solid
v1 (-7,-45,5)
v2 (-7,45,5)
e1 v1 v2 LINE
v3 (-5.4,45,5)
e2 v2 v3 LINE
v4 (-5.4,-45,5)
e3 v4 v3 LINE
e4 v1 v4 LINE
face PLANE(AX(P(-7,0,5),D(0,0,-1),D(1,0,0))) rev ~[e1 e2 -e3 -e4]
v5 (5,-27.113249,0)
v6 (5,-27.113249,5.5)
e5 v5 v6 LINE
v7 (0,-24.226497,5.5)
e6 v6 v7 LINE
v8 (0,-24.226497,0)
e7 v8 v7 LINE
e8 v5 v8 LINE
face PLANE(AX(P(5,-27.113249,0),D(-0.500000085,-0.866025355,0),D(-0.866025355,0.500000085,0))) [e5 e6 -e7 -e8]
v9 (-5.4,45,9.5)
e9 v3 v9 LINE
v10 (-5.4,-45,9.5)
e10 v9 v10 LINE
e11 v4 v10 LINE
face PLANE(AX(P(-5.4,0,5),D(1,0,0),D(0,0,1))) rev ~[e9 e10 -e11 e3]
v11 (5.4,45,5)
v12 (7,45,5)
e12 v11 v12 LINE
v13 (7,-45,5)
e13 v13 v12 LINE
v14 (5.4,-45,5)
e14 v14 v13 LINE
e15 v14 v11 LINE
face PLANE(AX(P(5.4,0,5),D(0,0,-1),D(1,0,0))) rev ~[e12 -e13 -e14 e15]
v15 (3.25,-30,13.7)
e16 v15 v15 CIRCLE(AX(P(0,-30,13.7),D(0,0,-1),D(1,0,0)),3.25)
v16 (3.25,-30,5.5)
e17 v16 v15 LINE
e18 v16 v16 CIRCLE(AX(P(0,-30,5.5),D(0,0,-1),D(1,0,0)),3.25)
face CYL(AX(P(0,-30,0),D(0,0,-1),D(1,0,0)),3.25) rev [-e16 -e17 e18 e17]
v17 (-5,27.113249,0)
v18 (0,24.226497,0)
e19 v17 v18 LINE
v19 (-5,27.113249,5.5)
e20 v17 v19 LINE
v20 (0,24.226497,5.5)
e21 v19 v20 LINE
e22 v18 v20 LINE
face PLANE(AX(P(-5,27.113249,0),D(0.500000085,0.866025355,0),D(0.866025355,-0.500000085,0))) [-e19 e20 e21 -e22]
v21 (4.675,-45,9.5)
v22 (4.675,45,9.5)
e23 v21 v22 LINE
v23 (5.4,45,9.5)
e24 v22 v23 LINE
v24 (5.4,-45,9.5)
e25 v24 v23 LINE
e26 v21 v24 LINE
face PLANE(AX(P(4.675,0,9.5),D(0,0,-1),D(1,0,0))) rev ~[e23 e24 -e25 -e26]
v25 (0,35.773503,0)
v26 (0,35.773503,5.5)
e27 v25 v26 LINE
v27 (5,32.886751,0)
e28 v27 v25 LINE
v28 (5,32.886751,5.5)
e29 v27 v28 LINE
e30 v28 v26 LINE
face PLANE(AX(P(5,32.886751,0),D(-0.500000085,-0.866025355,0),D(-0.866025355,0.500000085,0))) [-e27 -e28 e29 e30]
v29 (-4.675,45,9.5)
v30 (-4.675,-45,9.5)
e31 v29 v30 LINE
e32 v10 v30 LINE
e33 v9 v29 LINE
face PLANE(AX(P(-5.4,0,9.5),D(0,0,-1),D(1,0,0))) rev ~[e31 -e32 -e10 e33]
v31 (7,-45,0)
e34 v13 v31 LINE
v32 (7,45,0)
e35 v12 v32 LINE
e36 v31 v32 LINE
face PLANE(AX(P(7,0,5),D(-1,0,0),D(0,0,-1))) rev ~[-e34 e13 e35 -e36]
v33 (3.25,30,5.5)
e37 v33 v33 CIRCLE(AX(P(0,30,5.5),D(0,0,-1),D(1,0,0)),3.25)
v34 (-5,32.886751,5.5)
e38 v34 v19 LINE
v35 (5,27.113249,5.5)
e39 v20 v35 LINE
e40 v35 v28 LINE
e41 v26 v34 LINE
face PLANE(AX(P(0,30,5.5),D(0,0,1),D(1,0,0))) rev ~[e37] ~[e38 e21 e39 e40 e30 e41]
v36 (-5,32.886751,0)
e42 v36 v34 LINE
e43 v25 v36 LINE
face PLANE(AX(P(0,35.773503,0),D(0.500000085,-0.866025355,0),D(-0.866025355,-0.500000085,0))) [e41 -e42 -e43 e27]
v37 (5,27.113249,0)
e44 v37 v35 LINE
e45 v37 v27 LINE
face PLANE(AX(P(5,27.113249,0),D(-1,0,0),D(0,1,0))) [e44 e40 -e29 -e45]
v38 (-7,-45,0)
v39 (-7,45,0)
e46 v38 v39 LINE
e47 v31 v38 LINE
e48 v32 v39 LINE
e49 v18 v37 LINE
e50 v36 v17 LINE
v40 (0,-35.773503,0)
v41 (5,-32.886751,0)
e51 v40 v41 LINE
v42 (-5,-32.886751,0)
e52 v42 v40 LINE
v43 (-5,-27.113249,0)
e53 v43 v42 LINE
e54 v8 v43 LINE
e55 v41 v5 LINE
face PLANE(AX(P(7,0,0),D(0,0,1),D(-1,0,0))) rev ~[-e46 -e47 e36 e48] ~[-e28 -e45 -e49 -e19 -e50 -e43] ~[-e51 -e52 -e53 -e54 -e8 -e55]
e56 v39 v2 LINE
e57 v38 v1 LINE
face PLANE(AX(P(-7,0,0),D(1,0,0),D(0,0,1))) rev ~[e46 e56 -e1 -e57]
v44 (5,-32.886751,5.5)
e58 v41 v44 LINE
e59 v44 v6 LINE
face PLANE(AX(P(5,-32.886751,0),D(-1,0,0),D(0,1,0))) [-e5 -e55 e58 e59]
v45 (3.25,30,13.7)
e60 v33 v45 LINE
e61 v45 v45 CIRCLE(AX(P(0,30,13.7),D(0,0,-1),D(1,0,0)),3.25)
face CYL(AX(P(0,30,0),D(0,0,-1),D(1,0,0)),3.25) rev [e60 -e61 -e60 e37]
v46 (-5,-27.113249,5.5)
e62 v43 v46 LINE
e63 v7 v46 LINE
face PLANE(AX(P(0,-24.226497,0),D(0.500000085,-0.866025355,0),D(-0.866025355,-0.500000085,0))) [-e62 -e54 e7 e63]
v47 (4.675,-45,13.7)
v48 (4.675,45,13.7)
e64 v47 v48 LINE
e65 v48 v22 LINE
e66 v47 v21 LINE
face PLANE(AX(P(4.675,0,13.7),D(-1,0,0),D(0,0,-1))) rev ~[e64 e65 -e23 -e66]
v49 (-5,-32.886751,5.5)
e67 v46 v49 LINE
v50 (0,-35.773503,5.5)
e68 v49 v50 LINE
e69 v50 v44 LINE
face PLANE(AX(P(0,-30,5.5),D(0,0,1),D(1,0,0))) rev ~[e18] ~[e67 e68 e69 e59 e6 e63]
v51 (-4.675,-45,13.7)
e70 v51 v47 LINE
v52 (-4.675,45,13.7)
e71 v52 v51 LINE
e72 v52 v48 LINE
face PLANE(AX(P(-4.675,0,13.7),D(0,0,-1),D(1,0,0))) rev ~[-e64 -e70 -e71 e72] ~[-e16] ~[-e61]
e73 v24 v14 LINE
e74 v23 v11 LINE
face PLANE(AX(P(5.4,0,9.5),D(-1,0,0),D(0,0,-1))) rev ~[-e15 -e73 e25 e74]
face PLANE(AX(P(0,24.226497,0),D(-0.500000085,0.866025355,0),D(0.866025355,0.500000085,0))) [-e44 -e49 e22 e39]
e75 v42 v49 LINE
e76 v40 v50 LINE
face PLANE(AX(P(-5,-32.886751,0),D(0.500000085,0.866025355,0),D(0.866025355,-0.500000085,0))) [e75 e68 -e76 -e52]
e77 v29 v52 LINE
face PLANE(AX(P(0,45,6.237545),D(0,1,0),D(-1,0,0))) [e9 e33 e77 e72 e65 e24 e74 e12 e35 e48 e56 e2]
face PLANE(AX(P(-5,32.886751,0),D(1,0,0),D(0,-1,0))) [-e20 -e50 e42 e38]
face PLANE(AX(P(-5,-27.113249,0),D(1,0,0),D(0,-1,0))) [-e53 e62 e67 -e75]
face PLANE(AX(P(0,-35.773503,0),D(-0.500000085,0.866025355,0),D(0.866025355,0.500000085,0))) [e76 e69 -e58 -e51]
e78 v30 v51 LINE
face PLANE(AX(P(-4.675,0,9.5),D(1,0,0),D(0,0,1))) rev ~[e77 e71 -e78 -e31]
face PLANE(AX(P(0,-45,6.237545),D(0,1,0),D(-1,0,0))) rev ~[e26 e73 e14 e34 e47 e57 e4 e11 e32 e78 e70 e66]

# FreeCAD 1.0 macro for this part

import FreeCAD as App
import Part
import Sketcher
Q = App.Units.Quantity

doc = App.newDocument("Part")
body = doc.addObject("PartDesign::Body", "Body")

sketch1 = body.newObject("Sketcher::SketchObject", "Sketch")
sketch1.AttachmentSupport = (doc.getObject("XZ_Plane"), [""])
sketch1.MapMode = "FlatFace"
sketch1.addGeometry(Part.LineSegment(App.Vector(4.7, 13.7, 0), App.Vector(-4.7, 13.7, 0)), False)
sketch1.addGeometry(Part.LineSegment(App.Vector(-4.7, 13.7, 0), App.Vector(-4.7, 9.5, 0)), False)
sketch1.addGeometry(Part.LineSegment(App.Vector(-4.7, 9.5, 0), App.Vector(-5.4, 9.5, 0)), False)
sketch1.addGeometry(Part.LineSegment(App.Vector(-5.4, 9.5, 0), App.Vector(-5.4, 5, 0)), False)
sketch1.addGeometry(Part.LineSegment(App.Vector(-5.4, 5, 0), App.Vector(-7, 5, 0)), False)
sketch1.addGeometry(Part.LineSegment(App.Vector(-7, 5, 0), App.Vector(-7, 0, 0)), False)
sketch1.addGeometry(Part.LineSegment(App.Vector(-7, 0, 0), App.Vector(7, 0, 0)), False)
sketch1.addGeometry(Part.LineSegment(App.Vector(7, 0, 0), App.Vector(7, 5, 0)), False)
sketch1.addGeometry(Part.LineSegment(App.Vector(7, 5, 0), App.Vector(5.4, 5, 0)), False)
sketch1.addGeometry(Part.LineSegment(App.Vector(5.4, 5, 0), App.Vector(5.4, 9.5, 0)), False)
sketch1.addGeometry(Part.LineSegment(App.Vector(5.4, 9.5, 0), App.Vector(4.7, 9.5, 0)), False)
sketch1.addGeometry(Part.LineSegment(App.Vector(4.7, 9.5, 0), App.Vector(4.7, 13.7, 0)), False)
sketch1.addConstraint(Sketcher.Constraint("Coincident", 0, 2, 1, 1))
sketch1.addConstraint(Sketcher.Constraint("Coincident", 1, 2, 2, 1))
sketch1.addConstraint(Sketcher.Constraint("Coincident", 2, 2, 3, 1))
sketch1.addConstraint(Sketcher.Constraint("Coincident", 3, 2, 4, 1))
sketch1.addConstraint(Sketcher.Constraint("Coincident", 4, 2, 5, 1))
sketch1.addConstraint(Sketcher.Constraint("Coincident", 5, 2, 6, 1))
sketch1.addConstraint(Sketcher.Constraint("Coincident", 6, 2, 7, 1))
sketch1.addConstraint(Sketcher.Constraint("Coincident", 7, 2, 8, 1))
sketch1.addConstraint(Sketcher.Constraint("Coincident", 8, 2, 9, 1))
sketch1.addConstraint(Sketcher.Constraint("Coincident", 9, 2, 10, 1))
sketch1.addConstraint(Sketcher.Constraint("Coincident", 10, 2, 11, 1))
sketch1.addConstraint(Sketcher.Constraint("Coincident", 11, 2, 0, 1))
sketch1.addConstraint(Sketcher.Constraint("Horizontal", 0))
sketch1.addConstraint(Sketcher.Constraint("Vertical", 1))
sketch1.addConstraint(Sketcher.Constraint("Horizontal", 2))
sketch1.addConstraint(Sketcher.Constraint("Vertical", 3))
sketch1.addConstraint(Sketcher.Constraint("Horizontal", 4))
sketch1.addConstraint(Sketcher.Constraint("Vertical", 5))
sketch1.addConstraint(Sketcher.Constraint("Horizontal", 6))
sketch1.addConstraint(Sketcher.Constraint("Vertical", 7))
sketch1.addConstraint(Sketcher.Constraint("Horizontal", 8))
sketch1.addConstraint(Sketcher.Constraint("Vertical", 9))
sketch1.addConstraint(Sketcher.Constraint("Horizontal", 10))
sketch1.addConstraint(Sketcher.Constraint("Vertical", 11))
sketch1.addConstraint(Sketcher.Constraint("Symmetric", 5, 2, 6, 2, -1, 1))
sketch1.addConstraint(Sketcher.Constraint("Symmetric", 3, 2, 8, 2, -2))
sketch1.addConstraint(Sketcher.Constraint("Symmetric", 1, 2, 10, 2, -2))
sketch1.addConstraint(Sketcher.Constraint("DistanceX", 6, 1, 6, 2, Q("14 mm")))
sketch1.addConstraint(Sketcher.Constraint("DistanceY", 5, 2, 5, 1, Q("5 mm")))
sketch1.addConstraint(Sketcher.Constraint("DistanceX", 4, 2, 4, 1, Q("1.6 mm")))
sketch1.addConstraint(Sketcher.Constraint("DistanceY", 1, 2, 1, 1, Q("4.2 mm")))
sketch1.addConstraint(Sketcher.Constraint("DistanceY", 3, 2, 3, 1, Q("4.5 mm")))
sketch1.addConstraint(Sketcher.Constraint("DistanceX", 0, 2, 0, 1, Q("9.35 mm")))
pad1 = body.newObject("PartDesign::Pad", "Pad")
pad1.Profile = sketch1
pad1.Length = 90
pad1.Midplane = True

sketch2 = body.newObject("Sketcher::SketchObject", "Sketch001")
sketch2.AttachmentSupport = (doc.getObject("XY_Plane"), [""])
sketch2.MapMode = "FlatFace"
sketch2.addGeometry(Part.Circle(App.Vector(0, -30, 0), App.Vector(0, 0, 1), 3.2), False)
sketch2.addGeometry(Part.Circle(App.Vector(0, 30, 0), App.Vector(0, 0, 1), 3.2), False)
sketch2.addConstraint(Sketcher.Constraint("Equal", 0, 1))
sketch2.addConstraint(Sketcher.Constraint("Symmetric", 0, 3, 1, 3, -1, 1))
sketch2.addConstraint(Sketcher.Constraint("PointOnObject", 0, 3, -2))
sketch2.addConstraint(Sketcher.Constraint("Diameter", 0, Q("6.5 mm")))
sketch2.addConstraint(Sketcher.Constraint("DistanceY", 0, 3, -1, 1, Q("30 mm")))
pocket1 = body.newObject("PartDesign::Pocket", "Pocket")
pocket1.Profile = sketch2
pocket1.Type = "ThroughAll"
pocket1.Reversed = True

sketch3 = body.newObject("Sketcher::SketchObject", "Sketch002")
sketch3.AttachmentSupport = (doc.getObject("XY_Plane"), [""])
sketch3.MapMode = "FlatFace"
sketch3.addGeometry(Part.LineSegment(App.Vector(5, 27, 0), App.Vector(5, 33, 0)), False)
sketch3.addGeometry(Part.LineSegment(App.Vector(5, 33, 0), App.Vector(0, 36, 0)), False)
sketch3.addGeometry(Part.LineSegment(App.Vector(0, 36, 0), App.Vector(-5, 33, 0)), False)
sketch3.addGeometry(Part.LineSegment(App.Vector(-5, 33, 0), App.Vector(-5, 27, 0)), False)
sketch3.addGeometry(Part.LineSegment(App.Vector(-5, 27, 0), App.Vector(0, 24, 0)), False)
sketch3.addGeometry(Part.LineSegment(App.Vector(0, 24, 0), App.Vector(5, 27, 0)), False)
sketch3.addGeometry(Part.LineSegment(App.Vector(0, -36, 0), App.Vector(5, -33, 0)), False)
sketch3.addGeometry(Part.LineSegment(App.Vector(5, -33, 0), App.Vector(5, -27, 0)), False)
sketch3.addGeometry(Part.LineSegment(App.Vector(5, -27, 0), App.Vector(0, -24, 0)), False)
sketch3.addGeometry(Part.LineSegment(App.Vector(0, -24, 0), App.Vector(-5, -27, 0)), False)
sketch3.addGeometry(Part.LineSegment(App.Vector(-5, -27, 0), App.Vector(-5, -33, 0)), False)
sketch3.addGeometry(Part.LineSegment(App.Vector(-5, -33, 0), App.Vector(0, -36, 0)), False)
sketch3.addConstraint(Sketcher.Constraint("Coincident", 0, 2, 1, 1))
sketch3.addConstraint(Sketcher.Constraint("Coincident", 1, 2, 2, 1))
sketch3.addConstraint(Sketcher.Constraint("Coincident", 2, 2, 3, 1))
sketch3.addConstraint(Sketcher.Constraint("Coincident", 3, 2, 4, 1))
sketch3.addConstraint(Sketcher.Constraint("Coincident", 4, 2, 5, 1))
sketch3.addConstraint(Sketcher.Constraint("Coincident", 5, 2, 0, 1))
sketch3.addConstraint(Sketcher.Constraint("Coincident", 6, 2, 7, 1))
sketch3.addConstraint(Sketcher.Constraint("Coincident", 7, 2, 8, 1))
sketch3.addConstraint(Sketcher.Constraint("Coincident", 8, 2, 9, 1))
sketch3.addConstraint(Sketcher.Constraint("Coincident", 9, 2, 10, 1))
sketch3.addConstraint(Sketcher.Constraint("Coincident", 10, 2, 11, 1))
sketch3.addConstraint(Sketcher.Constraint("Coincident", 11, 2, 6, 1))
sketch3.addConstraint(Sketcher.Constraint("Vertical", 0))
sketch3.addConstraint(Sketcher.Constraint("Vertical", 3))
sketch3.addConstraint(Sketcher.Constraint("Vertical", 7))
sketch3.addConstraint(Sketcher.Constraint("Vertical", 10))
sketch3.addConstraint(Sketcher.Constraint("Symmetric", 2, 2, 6, 2, -1, 1))
sketch3.addConstraint(Sketcher.Constraint("Symmetric", 4, 2, 8, 2, -1, 1))
sketch3.addConstraint(Sketcher.Constraint("Symmetric", 5, 2, 9, 2, -1, 1))
sketch3.addConstraint(Sketcher.Constraint("Symmetric", 1, 2, 11, 2, -1, 1))
sketch3.addConstraint(Sketcher.Constraint("Symmetric", 0, 2, 2, 2, -2))
sketch3.addConstraint(Sketcher.Constraint("PointOnObject", 1, 2, -2))
sketch3.addConstraint(Sketcher.Constraint("PointOnObject", 4, 2, -2))
sketch3.addConstraint(Sketcher.Constraint("Parallel", 1, 4))
sketch3.addConstraint(Sketcher.Constraint("Parallel", 2, 5))
sketch3.addConstraint(Sketcher.Constraint("Parallel", 4, 8))
sketch3.addConstraint(Sketcher.Constraint("Parallel", 8, 11))
sketch3.addConstraint(Sketcher.Constraint("Angle", 1, Q("149.999994 deg")))
sketch3.addConstraint(Sketcher.Constraint("DistanceX", -1, 1, 0, 2, Q("5 mm")))
sketch3.addConstraint(Sketcher.Constraint("DistanceY", 6, 2, 5, 2, Q("60 mm")))
sketch3.addConstraint(Sketcher.Constraint("DistanceY", 0, 1, 0, 2, Q("5.773502 mm")))
pocket2 = body.newObject("PartDesign::Pocket", "Pocket001")
pocket2.Profile = sketch3
pocket2.Length = 5.5
pocket2.Reversed = True

doc.recompute()
